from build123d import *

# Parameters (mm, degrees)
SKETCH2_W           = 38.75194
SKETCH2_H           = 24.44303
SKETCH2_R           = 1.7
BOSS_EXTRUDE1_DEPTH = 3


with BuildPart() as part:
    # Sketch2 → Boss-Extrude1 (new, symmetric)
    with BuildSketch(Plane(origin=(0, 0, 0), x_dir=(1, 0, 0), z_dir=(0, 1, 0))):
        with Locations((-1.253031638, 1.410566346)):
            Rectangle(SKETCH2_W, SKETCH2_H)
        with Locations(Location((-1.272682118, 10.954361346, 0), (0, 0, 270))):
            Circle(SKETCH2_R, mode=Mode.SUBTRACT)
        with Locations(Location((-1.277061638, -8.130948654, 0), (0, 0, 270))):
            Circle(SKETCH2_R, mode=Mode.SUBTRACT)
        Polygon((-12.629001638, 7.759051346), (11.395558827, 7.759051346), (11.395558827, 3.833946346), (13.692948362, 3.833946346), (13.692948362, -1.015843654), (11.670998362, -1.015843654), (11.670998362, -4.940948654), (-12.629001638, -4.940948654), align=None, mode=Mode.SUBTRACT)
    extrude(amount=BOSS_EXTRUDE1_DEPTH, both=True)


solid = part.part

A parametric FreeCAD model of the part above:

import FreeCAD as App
import Part
import Sketcher


def add_polygon(sketch, points):
    """Adds a closed chain of lines whose ends are joined by coincident constraints."""
    first, n = sketch.GeometryCount, len(points)
    for a, b in zip(points, points[1:] + points[:1]):
        sketch.addGeometry(Part.LineSegment(App.Vector(*a, 0), App.Vector(*b, 0)), False)
    for i in range(n):
        sketch.addConstraint(Sketcher.Constraint("Coincident", first + i, 2, first + (i + 1) % n, 1))

doc = App.newDocument("Part")
params = doc.addObject("Spreadsheet::Sheet", "Params")
for row, (alias, value) in enumerate([
    ("sketch1_diameter", "3.4 mm"),
    ("sketch1_width", "24.3 mm"),
    ("sketch1_height", "12.7 mm"),
    ("pad1_length", "6 mm"),
], start=1):
    params.set(f"A{row}", alias)
    params.set(f"B{row}", "=" + value)
    params.setAlias(f"B{row}", alias)

body = doc.addObject("PartDesign::Body", "Body")

sketch1 = body.newObject("Sketcher::SketchObject", "Sketch")
sketch1.AttachmentSupport = (doc.getObject("XZ_Plane"), [""])
sketch1.MapMode = "FlatFace"
add_polygon(sketch1, [(-20.6, -13.6), (-20.6, 10.8), (18.1, 10.8), (18.1, -13.6)])
sketch1.addGeometry(Part.Circle(App.Vector(-1.3, 8.1, 0), App.Vector(0, 0, 1), 1.7), False)
add_polygon(sketch1, [(-12.6, 4.9), (-12.6, -7.8), (11.4, -7.8), (11.4, -3.8), (13.7, -3.8), (13.7, 1), (11.7, 1), (11.7, 4.9)])
sketch1.addGeometry(Part.Circle(App.Vector(-1.3, -11, 0), App.Vector(0, 0, 1), 1.7), False)
sketch1.addConstraint(Sketcher.Constraint("Vertical", 0))
sketch1.addConstraint(Sketcher.Constraint("Horizontal", 1))
sketch1.addConstraint(Sketcher.Constraint("Vertical", 2))
sketch1.addConstraint(Sketcher.Constraint("Horizontal", 3))
sketch1.addConstraint(Sketcher.Constraint("Vertical", 5))
sketch1.addConstraint(Sketcher.Constraint("Horizontal", 6))
sketch1.addConstraint(Sketcher.Constraint("Vertical", 7))
sketch1.addConstraint(Sketcher.Constraint("Horizontal", 8))
sketch1.addConstraint(Sketcher.Constraint("Vertical", 9))
sketch1.addConstraint(Sketcher.Constraint("Horizontal", 10))
sketch1.addConstraint(Sketcher.Constraint("Vertical", 11))
sketch1.addConstraint(Sketcher.Constraint("Horizontal", 12))
sketch1.addConstraint(Sketcher.Constraint("Equal", 4, 13))
sketch1.addConstraint(Sketcher.Constraint("Equal", 7, 11))
sketch1.addConstraint(Sketcher.Constraint("Diameter", 4, 3.4))
sketch1.addConstraint(Sketcher.Constraint("DistanceX", 12, 2, 12, 1, 24.3))
sketch1.addConstraint(Sketcher.Constraint("DistanceY", 5, 2, 5, 1, 12.7))
sketch1.addConstraint(Sketcher.Constraint("DistanceX", 3, 2, 5, 2, 8.0))
sketch1.addConstraint(Sketcher.Constraint("DistanceX", 4, 3, 1, 2, 19.4))
sketch1.addConstraint(Sketcher.Constraint("DistanceY", 4, 3, 0, 2, 2.68))
sketch1.addConstraint(Sketcher.Constraint("DistanceY", 5, 2, 4, 3, 15.89))
sketch1.addConstraint(Sketcher.Constraint("DistanceX", 0, 2, -1, 1, 20.629002))
sketch1.addConstraint(Sketcher.Constraint("DistanceX", 1, 1, 1, 2, 38.75194))
sketch1.addConstraint(Sketcher.Constraint("DistanceX", 6, 1, 6, 2, 24.02456))
sketch1.addConstraint(Sketcher.Constraint("DistanceX", 8, 1, 8, 2, 2.29739))
sketch1.addConstraint(Sketcher.Constraint("DistanceY", 0, 1, 0, 2, 24.44303))
sketch1.addConstraint(Sketcher.Constraint("DistanceY", 9, 1, 9, 2, 4.84979))
sketch1.addConstraint(Sketcher.Constraint("DistanceY", -1, 1, 4, 3, 8.130949))
sketch1.addConstraint(Sketcher.Constraint("DistanceY", 13, 3, -1, 1, 10.954361))
sketch1.addConstraint(Sketcher.Constraint("DistanceX", 4, 3, 13, 3, 0.00438))
sketch1.setExpression("Constraints[26]", "Params.sketch1_diameter")
sketch1.setExpression("Constraints[27]", "Params.sketch1_width")
sketch1.setExpression("Constraints[28]", "Params.sketch1_height")
pad1 = body.newObject("PartDesign::Pad", "Pad")
pad1.Profile = sketch1
pad1.setExpression("Length", "Params.pad1_length")
pad1.Midplane = True

doc.recompute()
